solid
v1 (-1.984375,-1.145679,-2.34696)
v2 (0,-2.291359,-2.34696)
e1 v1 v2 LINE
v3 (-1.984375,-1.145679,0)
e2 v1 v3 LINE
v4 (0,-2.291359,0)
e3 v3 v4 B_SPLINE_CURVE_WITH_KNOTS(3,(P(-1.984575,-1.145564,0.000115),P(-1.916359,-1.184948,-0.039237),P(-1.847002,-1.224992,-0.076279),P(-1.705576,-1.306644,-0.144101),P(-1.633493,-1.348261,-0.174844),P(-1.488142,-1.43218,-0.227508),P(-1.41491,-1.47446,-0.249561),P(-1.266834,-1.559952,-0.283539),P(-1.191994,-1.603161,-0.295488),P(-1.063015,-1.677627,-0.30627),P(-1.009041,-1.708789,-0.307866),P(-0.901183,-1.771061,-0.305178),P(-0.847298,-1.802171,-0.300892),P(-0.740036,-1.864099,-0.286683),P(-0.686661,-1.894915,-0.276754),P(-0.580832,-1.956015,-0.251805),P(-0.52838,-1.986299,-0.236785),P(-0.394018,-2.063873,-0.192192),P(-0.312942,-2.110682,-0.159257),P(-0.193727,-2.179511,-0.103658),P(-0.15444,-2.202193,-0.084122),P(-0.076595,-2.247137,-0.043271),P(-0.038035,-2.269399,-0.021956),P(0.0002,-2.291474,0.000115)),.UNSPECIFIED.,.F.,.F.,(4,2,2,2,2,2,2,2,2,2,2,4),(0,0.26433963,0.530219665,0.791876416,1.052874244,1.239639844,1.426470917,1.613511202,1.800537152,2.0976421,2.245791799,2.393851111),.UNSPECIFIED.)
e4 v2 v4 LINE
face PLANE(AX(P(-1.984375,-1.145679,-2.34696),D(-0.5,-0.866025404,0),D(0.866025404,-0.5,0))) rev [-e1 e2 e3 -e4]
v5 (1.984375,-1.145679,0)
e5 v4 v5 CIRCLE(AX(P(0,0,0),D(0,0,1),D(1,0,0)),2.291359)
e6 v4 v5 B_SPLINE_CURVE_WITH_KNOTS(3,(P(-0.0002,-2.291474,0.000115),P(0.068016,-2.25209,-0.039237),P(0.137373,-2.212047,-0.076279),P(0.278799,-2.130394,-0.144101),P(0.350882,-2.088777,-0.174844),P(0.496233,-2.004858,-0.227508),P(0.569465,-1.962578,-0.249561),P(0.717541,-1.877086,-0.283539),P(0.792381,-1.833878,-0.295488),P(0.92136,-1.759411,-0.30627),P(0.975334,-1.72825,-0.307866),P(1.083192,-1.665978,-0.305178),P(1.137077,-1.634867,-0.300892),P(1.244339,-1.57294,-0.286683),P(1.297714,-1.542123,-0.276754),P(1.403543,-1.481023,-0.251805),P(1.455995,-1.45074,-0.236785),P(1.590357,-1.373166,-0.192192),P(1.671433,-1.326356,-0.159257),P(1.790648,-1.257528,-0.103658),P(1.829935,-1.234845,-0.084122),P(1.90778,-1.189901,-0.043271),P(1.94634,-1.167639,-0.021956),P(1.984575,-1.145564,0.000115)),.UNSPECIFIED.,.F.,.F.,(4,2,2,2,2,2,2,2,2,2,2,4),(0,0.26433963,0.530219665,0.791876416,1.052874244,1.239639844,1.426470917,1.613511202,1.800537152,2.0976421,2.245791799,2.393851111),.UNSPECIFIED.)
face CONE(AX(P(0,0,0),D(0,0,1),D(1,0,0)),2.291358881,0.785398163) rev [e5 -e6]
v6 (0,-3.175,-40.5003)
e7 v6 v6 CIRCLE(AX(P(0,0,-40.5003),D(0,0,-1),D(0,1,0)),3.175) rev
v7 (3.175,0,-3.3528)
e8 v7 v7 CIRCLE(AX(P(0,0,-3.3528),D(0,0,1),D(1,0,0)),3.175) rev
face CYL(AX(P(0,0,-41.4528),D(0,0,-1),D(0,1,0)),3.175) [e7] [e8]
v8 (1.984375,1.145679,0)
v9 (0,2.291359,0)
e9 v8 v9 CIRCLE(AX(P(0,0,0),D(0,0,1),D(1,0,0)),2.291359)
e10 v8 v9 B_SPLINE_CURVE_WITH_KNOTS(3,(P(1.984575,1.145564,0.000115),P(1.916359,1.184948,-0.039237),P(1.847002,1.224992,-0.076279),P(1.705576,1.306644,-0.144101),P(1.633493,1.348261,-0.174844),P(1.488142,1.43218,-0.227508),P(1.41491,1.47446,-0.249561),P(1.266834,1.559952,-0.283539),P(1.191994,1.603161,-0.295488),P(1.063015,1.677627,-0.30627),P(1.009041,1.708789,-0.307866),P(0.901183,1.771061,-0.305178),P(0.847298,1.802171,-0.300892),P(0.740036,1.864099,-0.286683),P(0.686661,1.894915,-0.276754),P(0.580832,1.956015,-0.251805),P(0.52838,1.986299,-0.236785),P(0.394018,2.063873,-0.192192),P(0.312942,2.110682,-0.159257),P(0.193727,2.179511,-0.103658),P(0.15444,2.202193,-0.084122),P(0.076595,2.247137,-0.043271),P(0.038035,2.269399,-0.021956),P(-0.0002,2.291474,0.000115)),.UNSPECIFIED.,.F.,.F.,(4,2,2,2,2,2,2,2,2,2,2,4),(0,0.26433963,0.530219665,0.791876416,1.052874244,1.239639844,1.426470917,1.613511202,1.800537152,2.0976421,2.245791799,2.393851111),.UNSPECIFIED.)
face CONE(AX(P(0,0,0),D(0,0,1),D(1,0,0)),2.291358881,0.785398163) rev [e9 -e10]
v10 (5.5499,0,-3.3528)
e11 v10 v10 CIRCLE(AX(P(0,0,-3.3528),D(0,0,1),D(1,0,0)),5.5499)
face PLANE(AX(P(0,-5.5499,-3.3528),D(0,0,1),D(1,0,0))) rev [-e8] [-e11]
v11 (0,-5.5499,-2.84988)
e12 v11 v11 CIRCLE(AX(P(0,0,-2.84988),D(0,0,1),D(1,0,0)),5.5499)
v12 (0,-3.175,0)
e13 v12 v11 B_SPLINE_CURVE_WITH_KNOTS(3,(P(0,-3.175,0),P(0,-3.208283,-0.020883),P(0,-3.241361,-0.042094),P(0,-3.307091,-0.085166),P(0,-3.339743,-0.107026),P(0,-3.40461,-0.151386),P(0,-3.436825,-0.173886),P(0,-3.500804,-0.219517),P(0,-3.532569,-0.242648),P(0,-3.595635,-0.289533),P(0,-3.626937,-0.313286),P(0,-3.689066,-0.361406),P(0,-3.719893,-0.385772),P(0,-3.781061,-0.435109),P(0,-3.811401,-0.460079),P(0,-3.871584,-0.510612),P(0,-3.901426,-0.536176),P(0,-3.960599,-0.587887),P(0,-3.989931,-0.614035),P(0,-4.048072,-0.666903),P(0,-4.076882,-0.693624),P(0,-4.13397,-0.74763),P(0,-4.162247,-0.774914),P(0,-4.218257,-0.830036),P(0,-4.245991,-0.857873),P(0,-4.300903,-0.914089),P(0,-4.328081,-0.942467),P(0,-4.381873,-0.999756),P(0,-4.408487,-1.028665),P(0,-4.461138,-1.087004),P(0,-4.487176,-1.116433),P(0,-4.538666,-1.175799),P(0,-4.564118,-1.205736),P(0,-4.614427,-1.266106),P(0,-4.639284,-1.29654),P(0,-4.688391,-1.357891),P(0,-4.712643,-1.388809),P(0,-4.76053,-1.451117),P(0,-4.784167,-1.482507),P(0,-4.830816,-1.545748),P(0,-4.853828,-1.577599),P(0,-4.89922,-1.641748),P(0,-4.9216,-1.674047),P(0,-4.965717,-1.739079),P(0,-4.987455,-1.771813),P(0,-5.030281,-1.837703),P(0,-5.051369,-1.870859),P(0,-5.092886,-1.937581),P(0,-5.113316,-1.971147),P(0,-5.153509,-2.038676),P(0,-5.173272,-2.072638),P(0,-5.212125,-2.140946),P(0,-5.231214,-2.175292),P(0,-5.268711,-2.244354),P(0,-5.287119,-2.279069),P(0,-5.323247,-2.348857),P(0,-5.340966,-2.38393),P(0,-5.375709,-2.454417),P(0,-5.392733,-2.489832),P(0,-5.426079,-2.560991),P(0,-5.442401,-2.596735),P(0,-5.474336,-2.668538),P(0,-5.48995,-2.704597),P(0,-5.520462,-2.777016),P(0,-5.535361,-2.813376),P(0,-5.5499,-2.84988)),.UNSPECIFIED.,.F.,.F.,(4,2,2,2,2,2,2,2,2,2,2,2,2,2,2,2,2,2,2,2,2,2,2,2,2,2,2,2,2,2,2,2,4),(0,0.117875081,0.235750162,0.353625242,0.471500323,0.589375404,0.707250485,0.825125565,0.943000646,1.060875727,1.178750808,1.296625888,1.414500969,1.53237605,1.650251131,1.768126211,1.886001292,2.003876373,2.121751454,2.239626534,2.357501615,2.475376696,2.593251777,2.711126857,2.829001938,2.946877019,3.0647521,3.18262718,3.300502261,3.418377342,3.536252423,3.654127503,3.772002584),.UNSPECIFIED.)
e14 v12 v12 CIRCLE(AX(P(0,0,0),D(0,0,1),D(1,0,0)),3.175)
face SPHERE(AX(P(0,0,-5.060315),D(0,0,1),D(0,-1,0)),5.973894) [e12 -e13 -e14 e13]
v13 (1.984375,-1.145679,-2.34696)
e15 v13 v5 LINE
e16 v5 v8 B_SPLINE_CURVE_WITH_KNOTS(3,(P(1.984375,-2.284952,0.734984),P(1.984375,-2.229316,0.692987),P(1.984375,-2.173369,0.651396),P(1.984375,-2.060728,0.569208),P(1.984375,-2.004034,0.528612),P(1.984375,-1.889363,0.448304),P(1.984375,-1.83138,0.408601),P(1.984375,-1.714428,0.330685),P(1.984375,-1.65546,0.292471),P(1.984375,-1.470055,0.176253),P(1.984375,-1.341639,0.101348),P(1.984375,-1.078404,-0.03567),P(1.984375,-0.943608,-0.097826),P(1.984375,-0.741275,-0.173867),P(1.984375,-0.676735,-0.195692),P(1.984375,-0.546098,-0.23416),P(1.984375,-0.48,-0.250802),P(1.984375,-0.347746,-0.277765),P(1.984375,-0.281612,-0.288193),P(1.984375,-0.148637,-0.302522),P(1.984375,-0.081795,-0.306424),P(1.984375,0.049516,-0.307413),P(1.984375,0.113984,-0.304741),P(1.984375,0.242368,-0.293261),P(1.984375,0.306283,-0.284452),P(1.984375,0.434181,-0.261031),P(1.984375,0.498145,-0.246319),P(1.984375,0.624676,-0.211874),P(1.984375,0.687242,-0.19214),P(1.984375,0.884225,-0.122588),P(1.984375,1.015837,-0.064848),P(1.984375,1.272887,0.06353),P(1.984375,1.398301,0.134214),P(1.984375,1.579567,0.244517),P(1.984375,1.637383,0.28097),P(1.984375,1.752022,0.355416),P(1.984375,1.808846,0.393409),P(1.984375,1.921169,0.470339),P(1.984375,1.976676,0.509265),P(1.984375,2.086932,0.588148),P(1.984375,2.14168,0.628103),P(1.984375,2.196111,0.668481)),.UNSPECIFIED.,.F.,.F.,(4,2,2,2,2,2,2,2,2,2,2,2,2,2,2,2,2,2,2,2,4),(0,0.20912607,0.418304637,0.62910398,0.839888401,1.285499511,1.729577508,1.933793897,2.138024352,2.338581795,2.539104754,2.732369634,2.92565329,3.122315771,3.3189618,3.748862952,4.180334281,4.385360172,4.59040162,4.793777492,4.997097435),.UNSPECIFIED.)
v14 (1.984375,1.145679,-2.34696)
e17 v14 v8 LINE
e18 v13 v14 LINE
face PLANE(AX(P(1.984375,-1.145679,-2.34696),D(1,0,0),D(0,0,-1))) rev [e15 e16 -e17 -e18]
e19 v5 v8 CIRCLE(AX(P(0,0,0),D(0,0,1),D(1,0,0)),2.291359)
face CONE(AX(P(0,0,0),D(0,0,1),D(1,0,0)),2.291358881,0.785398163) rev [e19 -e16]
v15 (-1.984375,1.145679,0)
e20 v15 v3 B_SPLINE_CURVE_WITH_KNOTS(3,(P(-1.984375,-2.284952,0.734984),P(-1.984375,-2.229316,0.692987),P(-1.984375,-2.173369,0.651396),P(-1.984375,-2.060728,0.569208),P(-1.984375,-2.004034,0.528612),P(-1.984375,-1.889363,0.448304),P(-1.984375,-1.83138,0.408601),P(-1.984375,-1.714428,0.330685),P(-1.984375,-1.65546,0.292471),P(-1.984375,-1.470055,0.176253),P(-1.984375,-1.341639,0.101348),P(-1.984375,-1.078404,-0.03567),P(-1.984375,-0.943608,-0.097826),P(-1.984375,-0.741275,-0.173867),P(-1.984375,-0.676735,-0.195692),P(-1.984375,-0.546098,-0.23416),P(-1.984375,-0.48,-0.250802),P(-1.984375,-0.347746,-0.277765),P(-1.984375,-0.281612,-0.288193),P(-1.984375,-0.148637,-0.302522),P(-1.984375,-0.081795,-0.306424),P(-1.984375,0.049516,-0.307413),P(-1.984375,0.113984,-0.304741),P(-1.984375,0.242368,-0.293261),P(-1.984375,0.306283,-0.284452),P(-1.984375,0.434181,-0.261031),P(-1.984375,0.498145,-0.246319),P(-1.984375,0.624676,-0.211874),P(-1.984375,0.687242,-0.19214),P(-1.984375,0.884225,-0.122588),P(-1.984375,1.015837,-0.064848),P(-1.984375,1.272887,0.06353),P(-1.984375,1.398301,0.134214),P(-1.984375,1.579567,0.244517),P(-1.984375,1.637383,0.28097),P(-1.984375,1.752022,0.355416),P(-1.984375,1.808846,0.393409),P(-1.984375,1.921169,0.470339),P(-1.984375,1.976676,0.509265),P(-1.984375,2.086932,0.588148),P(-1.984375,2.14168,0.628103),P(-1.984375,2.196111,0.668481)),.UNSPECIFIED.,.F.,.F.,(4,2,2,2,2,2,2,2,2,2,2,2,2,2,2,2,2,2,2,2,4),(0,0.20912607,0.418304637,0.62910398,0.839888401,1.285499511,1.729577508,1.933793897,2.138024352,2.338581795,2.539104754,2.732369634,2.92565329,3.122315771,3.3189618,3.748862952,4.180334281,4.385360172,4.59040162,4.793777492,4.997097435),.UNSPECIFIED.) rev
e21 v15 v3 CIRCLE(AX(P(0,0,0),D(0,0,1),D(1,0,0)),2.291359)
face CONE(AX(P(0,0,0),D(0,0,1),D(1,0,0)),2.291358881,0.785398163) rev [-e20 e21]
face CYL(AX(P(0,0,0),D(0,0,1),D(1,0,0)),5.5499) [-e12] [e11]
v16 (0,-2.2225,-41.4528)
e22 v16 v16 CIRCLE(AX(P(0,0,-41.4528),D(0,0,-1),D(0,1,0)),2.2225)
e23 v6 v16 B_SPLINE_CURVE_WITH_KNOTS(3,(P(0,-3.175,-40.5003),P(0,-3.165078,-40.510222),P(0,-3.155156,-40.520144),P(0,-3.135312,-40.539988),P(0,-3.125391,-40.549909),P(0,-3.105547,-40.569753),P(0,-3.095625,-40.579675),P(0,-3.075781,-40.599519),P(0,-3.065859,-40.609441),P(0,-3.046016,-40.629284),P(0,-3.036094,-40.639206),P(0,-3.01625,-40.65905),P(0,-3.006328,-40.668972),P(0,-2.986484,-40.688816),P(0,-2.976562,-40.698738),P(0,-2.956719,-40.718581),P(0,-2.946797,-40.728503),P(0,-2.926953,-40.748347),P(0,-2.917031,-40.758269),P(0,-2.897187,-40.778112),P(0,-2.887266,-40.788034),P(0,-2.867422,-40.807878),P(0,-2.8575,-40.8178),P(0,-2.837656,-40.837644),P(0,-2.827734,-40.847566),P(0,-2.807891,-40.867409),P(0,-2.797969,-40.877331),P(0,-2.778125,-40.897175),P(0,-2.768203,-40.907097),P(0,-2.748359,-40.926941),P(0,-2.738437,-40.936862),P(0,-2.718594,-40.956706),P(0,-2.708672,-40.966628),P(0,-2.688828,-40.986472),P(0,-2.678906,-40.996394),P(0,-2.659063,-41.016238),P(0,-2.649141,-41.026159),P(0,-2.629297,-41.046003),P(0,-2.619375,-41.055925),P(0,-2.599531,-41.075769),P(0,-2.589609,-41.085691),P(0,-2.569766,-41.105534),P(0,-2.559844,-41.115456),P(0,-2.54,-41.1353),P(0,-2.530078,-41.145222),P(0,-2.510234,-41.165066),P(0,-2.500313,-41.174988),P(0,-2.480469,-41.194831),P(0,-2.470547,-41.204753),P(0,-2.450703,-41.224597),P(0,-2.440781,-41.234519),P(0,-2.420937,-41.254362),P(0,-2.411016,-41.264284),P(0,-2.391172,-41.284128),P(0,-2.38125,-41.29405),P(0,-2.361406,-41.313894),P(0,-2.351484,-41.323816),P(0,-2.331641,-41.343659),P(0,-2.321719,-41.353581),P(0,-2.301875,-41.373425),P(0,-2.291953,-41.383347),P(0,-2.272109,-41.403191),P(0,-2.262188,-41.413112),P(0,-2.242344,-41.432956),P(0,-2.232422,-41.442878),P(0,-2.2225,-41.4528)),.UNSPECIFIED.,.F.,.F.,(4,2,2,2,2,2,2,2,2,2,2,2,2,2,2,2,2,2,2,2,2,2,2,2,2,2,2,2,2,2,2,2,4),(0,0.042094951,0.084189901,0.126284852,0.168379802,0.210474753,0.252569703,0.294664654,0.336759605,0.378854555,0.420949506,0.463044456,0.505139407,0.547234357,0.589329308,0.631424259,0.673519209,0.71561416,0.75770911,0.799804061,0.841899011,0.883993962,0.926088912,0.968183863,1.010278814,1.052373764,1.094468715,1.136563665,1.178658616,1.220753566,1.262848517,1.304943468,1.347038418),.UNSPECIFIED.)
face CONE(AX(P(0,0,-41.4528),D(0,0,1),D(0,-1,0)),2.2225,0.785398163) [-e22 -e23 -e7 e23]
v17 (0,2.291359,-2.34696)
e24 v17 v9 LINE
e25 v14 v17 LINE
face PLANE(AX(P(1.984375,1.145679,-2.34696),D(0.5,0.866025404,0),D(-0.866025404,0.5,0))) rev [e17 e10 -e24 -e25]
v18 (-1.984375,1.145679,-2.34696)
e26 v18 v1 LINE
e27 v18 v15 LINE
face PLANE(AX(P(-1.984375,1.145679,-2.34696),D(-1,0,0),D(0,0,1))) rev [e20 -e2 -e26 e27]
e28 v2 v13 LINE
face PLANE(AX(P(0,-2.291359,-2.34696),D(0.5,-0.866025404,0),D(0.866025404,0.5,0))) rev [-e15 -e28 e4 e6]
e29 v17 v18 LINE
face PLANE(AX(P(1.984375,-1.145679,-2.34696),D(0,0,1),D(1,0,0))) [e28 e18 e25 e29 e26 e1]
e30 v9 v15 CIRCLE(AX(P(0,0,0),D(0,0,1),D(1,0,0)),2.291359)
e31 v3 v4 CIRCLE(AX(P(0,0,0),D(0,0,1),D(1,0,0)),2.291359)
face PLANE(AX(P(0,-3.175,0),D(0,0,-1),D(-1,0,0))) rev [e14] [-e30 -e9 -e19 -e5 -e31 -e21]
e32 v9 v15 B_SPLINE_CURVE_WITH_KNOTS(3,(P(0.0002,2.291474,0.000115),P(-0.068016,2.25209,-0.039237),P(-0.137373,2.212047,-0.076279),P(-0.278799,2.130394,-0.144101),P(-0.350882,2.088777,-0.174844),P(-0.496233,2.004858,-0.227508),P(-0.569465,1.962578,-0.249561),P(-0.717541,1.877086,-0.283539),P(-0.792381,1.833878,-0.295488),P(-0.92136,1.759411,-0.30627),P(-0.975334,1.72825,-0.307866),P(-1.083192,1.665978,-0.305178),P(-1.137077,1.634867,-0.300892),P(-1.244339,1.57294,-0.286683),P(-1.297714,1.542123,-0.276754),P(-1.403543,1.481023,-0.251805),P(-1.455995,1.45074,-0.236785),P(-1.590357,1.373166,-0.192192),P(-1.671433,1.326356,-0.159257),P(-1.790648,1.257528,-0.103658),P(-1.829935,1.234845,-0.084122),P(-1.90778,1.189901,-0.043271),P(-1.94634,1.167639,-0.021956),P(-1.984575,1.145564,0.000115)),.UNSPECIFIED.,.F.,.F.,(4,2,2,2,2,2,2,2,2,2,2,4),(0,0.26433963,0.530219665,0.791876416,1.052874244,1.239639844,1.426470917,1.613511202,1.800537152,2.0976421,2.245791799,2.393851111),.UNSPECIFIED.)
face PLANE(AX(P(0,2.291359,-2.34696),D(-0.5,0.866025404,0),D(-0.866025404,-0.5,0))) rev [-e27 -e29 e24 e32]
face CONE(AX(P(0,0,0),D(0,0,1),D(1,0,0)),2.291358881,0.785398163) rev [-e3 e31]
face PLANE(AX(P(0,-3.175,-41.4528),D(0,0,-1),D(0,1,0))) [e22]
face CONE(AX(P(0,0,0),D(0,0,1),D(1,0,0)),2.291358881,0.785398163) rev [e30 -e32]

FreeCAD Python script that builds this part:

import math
import FreeCAD as App
import Part
import Sketcher
from FreeCAD import Vector
Q = App.Units.Quantity


def edges_at(feature, points):
    """Names of the edges that pass closest to the given points."""
    edges = feature.Shape.Edges
    near = lambda p: min(range(len(edges)), key=lambda i: edges[i].distToShape(Part.Vertex(*p))[0])
    return sorted({f"Edge{near(p) + 1}" for p in points})


def add_polygon(sketch, points):
    """Adds a closed chain of lines whose ends are joined by coincident constraints."""
    first, n = sketch.GeometryCount, len(points)
    for a, b in zip(points, points[1:] + points[:1]):
        sketch.addGeometry(Part.LineSegment(App.Vector(*a, 0), App.Vector(*b, 0)), False)
    for i in range(n):
        sketch.addConstraint(Sketcher.Constraint("Coincident", first + i, 2, first + (i + 1) % n, 1))

doc = App.newDocument("Part")
body = doc.addObject("PartDesign::Body", "Body")

sketch1 = body.newObject("Sketcher::SketchObject", "Sketch")
sketch1.AttachmentSupport = (doc.getObject("YZ_Plane"), [""])
sketch1.MapMode = "FlatFace"
add_polygon(sketch1, [(3.175, -3.3528), (0, -3.3528), (0, -41.4528), (3.175, -41.4528)])
sketch1.addConstraint(Sketcher.Constraint("Horizontal", 0))
sketch1.addConstraint(Sketcher.Constraint("Vertical", 1))
sketch1.addConstraint(Sketcher.Constraint("Horizontal", 2))
sketch1.addConstraint(Sketcher.Constraint("Vertical", 3))
sketch1.addConstraint(Sketcher.Constraint("PointOnObject", 0, 2, -2))
sketch1.addConstraint(Sketcher.Constraint("DistanceY", 1, 2, 1, 1, Q("1.5 in")))
sketch1.addConstraint(Sketcher.Constraint("DistanceX", 0, 2, 0, 1, Q("0.125 in")))
sketch1.addConstraint(Sketcher.Constraint("DistanceY", 0, 2, -1, 1, Q("0.132 in")))
revolution = body.newObject("PartDesign::Revolution", "Revolution")
revolution.Profile = sketch1
revolution.ReferenceAxis = (sketch1, ["V_Axis"])
revolution.Angle = 360
doc.recompute()

chamfer = body.newObject("PartDesign::Chamfer", "Chamfer")
chamfer.Base = (revolution, edges_at(revolution, [(0, -3.175, -41.453)]))
chamfer.Size = Q("0.0375 in")

sketch2 = body.newObject("Sketcher::SketchObject", "Sketch001")
sketch2.AttachmentSupport = (doc.getObject("YZ_Plane"), [""])
sketch2.MapMode = "FlatFace"
sketch2.addGeometry(Part.LineSegment(Vector(5.5499, -3.3528, 0), Vector(5.5499, -2.84988, 0)), False)
sketch2.addGeometry(Part.ArcOfCircle(Part.Circle(Vector(0, -5.060315, 0), Vector(0, 0, 1), 5.973894), math.radians(21.716589), math.radians(57.894553)), False)
sketch2.addGeometry(Part.LineSegment(Vector(3.175, 0, 0), Vector(0, 0, 0)), False)
sketch2.addGeometry(Part.LineSegment(Vector(0, 0, 0), Vector(0, -3.3528, 0)), False)
sketch2.addGeometry(Part.LineSegment(Vector(0, -3.3528, 0), Vector(5.5499, -3.3528, 0)), False)
sketch2.addConstraint(Sketcher.Constraint("Coincident", 0, 2, 1, 1))
sketch2.addConstraint(Sketcher.Constraint("Coincident", 1, 2, 2, 1))
sketch2.addConstraint(Sketcher.Constraint("Coincident", 2, 2, 3, 1))
sketch2.addConstraint(Sketcher.Constraint("Coincident", 3, 2, 4, 1))
sketch2.addConstraint(Sketcher.Constraint("Coincident", 4, 2, 0, 1))
sketch2.addConstraint(Sketcher.Constraint("Vertical", 0))
sketch2.addConstraint(Sketcher.Constraint("Horizontal", 2))
sketch2.addConstraint(Sketcher.Constraint("Vertical", 3))
sketch2.addConstraint(Sketcher.Constraint("Horizontal", 4))
sketch2.addConstraint(Sketcher.Constraint("Coincident", 2, 2, -1, 1))
sketch2.addConstraint(Sketcher.Constraint("PointOnObject", 1, 3, -2))
sketch2.addConstraint(Sketcher.Constraint("DistanceX", 2, 2, 2, 1, Q("0.125 in")))
sketch2.addConstraint(Sketcher.Constraint("DistanceY", 3, 2, 3, 1, Q("0.132 in")))
sketch2.addConstraint(Sketcher.Constraint("DistanceX", 4, 1, 4, 2, Q("0.2185 in")))
sketch2.addConstraint(Sketcher.Constraint("DistanceY", 0, 1, 0, 2, Q("0.0198 in")))
revolution2 = body.newObject("PartDesign::Revolution", "Revolution001")
revolution2.Profile = sketch2
revolution2.ReferenceAxis = (sketch2, ["V_Axis"])
revolution2.Angle = 360

sketch3 = body.newObject("Sketcher::SketchObject", "Sketch002")
sketch3.AttachmentSupport = (doc.getObject("XY_Plane"), [""])
sketch3.MapMode = "FlatFace"
add_polygon(sketch3, [(1.984375, -1.145679), (1.984375, 1.145679), (0, 2.291359), (-1.984375, 1.145679), (-1.984375, -1.145679), (0, -2.291359)])
sketch3.addConstraint(Sketcher.Constraint("Vertical", 0))
sketch3.addConstraint(Sketcher.Constraint("Vertical", 3))
sketch3.addConstraint(Sketcher.Constraint("Symmetric", 0, 2, 3, 2, -1, 1))
sketch3.addConstraint(Sketcher.Constraint("Symmetric", 1, 2, 4, 2, -1, 1))
sketch3.addConstraint(Sketcher.Constraint("PointOnObject", 1, 2, -2))
sketch3.addConstraint(Sketcher.Constraint("Parallel", 2, 5))
sketch3.addConstraint(Sketcher.Constraint("Horizontal", 0, 2, 2, 2))
sketch3.addConstraint(Sketcher.Constraint("Angle", 1, Q("150 deg")))
sketch3.addConstraint(Sketcher.Constraint("DistanceX", -1, 1, 0, 2, Q("0.078125 in")))
sketch3.addConstraint(Sketcher.Constraint("DistanceY", 0, 1, 0, 2, Q("2.291359 mm")))
pocket1 = body.newObject("PartDesign::Pocket", "Pocket")
pocket1.Profile = sketch3
pocket1.Length = Q("0.0924 in")

sketch4 = body.newObject("Sketcher::SketchObject", "Sketch003")
sketch4.AttachmentSupport = (doc.getObject("YZ_Plane"), [""])
sketch4.MapMode = "FlatFace"
add_polygon(sketch4, [(0, 0), (-2.291359, 0), (0, -2.291359)])
sketch4.addConstraint(Sketcher.Constraint("Horizontal", 0))
sketch4.addConstraint(Sketcher.Constraint("Vertical", 2))
sketch4.addConstraint(Sketcher.Constraint("Coincident", 2, 2, -1, 1))
sketch4.addConstraint(Sketcher.Constraint("Equal", 0, 2))
sketch4.addConstraint(Sketcher.Constraint("DistanceX", 0, 2, 0, 1, Q("2.291359 mm")))
groove = body.newObject("PartDesign::Groove", "Groove")
groove.Profile = sketch4
groove.ReferenceAxis = (sketch4, ["V_Axis"])
groove.Angle = 360

doc.recompute()
